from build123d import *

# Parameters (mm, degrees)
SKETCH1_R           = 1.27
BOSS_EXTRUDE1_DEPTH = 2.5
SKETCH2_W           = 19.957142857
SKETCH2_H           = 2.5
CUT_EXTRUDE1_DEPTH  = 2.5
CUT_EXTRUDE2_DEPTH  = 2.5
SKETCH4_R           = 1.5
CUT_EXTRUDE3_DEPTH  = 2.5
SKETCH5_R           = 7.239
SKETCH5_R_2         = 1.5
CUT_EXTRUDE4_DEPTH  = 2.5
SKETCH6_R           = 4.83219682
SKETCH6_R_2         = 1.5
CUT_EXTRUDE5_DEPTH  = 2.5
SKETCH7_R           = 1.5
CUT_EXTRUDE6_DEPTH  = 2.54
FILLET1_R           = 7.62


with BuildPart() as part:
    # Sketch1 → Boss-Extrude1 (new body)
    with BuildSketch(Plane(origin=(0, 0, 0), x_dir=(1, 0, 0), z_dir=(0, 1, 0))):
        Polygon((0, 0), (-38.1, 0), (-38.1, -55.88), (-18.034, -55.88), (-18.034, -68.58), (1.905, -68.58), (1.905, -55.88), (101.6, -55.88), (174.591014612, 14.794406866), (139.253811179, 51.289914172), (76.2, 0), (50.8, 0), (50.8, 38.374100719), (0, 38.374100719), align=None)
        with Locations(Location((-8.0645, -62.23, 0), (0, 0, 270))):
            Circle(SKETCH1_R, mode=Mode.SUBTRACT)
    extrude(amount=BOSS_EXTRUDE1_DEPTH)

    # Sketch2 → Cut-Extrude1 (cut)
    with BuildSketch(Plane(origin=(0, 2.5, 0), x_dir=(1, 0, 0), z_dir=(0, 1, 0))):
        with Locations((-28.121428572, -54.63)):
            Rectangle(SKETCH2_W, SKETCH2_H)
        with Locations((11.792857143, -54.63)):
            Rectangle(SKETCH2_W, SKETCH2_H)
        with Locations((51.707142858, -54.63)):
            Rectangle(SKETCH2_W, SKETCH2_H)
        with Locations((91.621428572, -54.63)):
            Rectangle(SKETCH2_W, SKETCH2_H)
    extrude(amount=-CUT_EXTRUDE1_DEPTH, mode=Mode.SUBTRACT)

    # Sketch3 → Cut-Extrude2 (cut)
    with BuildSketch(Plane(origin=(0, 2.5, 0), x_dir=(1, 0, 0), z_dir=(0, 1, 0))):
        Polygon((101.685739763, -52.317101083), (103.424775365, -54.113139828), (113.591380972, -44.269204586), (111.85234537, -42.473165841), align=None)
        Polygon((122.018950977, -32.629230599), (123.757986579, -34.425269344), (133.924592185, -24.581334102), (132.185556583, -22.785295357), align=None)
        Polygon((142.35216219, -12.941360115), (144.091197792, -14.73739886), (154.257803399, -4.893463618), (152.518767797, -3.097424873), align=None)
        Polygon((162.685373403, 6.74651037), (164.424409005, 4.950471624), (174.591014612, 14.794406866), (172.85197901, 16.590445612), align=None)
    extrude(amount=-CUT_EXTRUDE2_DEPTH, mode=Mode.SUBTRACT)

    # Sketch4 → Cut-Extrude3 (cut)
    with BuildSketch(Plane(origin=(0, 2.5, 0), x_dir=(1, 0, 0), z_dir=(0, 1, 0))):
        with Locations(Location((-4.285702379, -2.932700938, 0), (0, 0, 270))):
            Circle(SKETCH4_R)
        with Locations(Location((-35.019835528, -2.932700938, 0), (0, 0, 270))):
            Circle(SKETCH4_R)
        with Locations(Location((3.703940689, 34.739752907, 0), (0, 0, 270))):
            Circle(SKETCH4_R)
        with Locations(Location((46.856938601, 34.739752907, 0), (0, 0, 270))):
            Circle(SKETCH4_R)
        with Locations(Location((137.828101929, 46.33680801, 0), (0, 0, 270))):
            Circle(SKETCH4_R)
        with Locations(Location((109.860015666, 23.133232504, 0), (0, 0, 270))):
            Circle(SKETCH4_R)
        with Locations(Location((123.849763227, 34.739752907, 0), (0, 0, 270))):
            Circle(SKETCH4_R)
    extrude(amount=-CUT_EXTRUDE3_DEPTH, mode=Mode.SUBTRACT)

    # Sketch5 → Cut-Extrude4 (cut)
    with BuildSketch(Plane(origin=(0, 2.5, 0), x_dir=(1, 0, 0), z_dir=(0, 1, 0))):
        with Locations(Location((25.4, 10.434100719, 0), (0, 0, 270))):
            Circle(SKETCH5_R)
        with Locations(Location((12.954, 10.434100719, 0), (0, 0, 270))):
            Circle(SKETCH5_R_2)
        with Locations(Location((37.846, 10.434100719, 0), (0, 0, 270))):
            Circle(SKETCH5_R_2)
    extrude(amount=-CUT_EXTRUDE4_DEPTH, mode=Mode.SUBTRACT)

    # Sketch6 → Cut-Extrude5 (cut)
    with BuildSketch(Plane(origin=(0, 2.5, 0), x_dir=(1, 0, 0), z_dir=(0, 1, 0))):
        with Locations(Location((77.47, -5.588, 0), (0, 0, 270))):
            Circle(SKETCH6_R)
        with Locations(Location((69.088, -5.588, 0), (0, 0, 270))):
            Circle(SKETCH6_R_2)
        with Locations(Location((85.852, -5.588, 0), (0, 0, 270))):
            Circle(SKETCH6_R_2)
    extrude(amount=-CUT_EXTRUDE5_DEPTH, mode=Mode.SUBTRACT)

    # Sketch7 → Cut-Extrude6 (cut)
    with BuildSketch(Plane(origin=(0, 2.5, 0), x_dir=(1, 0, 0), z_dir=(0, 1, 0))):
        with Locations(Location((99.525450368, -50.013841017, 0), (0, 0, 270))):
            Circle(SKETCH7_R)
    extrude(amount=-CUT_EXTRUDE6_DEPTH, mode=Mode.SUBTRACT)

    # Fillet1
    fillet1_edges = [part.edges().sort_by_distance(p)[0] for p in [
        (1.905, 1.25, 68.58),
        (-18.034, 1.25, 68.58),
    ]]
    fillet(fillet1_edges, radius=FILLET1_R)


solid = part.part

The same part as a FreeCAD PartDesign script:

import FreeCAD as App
import Part
import Sketcher

V = App.Vector
Q = App.Units.Quantity


def edges_at(feature, points):
    """Names of the edges that pass closest to the given points."""
    edges = feature.Shape.Edges
    near = lambda p: min(range(len(edges)), key=lambda i: edges[i].distToShape(Part.Vertex(*p))[0])
    return sorted({f"Edge{near(p) + 1}" for p in points})

doc = App.newDocument("Part")
body = doc.addObject("PartDesign::Body", "Body")

# Sketch on XZ plane
sketch1 = body.newObject("Sketcher::SketchObject", "Sketch")
sketch1.AttachmentSupport = (doc.getObject("XZ_Plane"), [""])
sketch1.MapMode = "FlatFace"
sketch1.addGeometry([
    Part.LineSegment(V(0, 0, 0), V(-38.1, 0, 0)),  # 0
    Part.LineSegment(V(-38.1, 0, 0), V(-38.1, 55.9, 0)),  # 1
    Part.LineSegment(V(-38.1, 55.9, 0), V(-18, 55.9, 0)),  # 2
    Part.LineSegment(V(-18, 55.9, 0), V(-18, 68.6, 0)),  # 3
    Part.LineSegment(V(-18, 68.6, 0), V(1.9, 68.6, 0)),  # 4
    Part.LineSegment(V(1.9, 68.6, 0), V(1.9, 55.9, 0)),  # 5
    Part.LineSegment(V(1.9, 55.9, 0), V(101.6, 55.9, 0)),  # 6
    Part.LineSegment(V(101.6, 55.9, 0), V(174.6, -14.8, 0)),  # 7
    Part.LineSegment(V(174.6, -14.8, 0), V(139.3, -51.3, 0)),  # 8
    Part.LineSegment(V(139.3, -51.3, 0), V(76.2, 0, 0)),  # 9
    Part.LineSegment(V(76.2, 0, 0), V(50.8, 0, 0)),  # 10
    Part.LineSegment(V(50.8, 0, 0), V(50.8, -38.4, 0)),  # 11
    Part.LineSegment(V(50.8, -38.4, 0), V(0, -38.4, 0)),  # 12
    Part.LineSegment(V(0, -38.4, 0), V(0, 0, 0)),  # 13
    Part.Circle(V(-8.1, 62.2, 0), V(0, 0, 1), 1.3),  # 14
], False)
sketch1.addConstraint([
    Sketcher.Constraint("Coincident", 0, 2, 1, 1),
    Sketcher.Constraint("Coincident", 1, 2, 2, 1),
    Sketcher.Constraint("Coincident", 2, 2, 3, 1),
    Sketcher.Constraint("Coincident", 3, 2, 4, 1),
    Sketcher.Constraint("Coincident", 4, 2, 5, 1),
    Sketcher.Constraint("Coincident", 5, 2, 6, 1),
    Sketcher.Constraint("Coincident", 6, 2, 7, 1),
    Sketcher.Constraint("Coincident", 7, 2, 8, 1),
    Sketcher.Constraint("Coincident", 8, 2, 9, 1),
    Sketcher.Constraint("Coincident", 9, 2, 10, 1),
    Sketcher.Constraint("Coincident", 10, 2, 11, 1),
    Sketcher.Constraint("Coincident", 11, 2, 12, 1),
    Sketcher.Constraint("Coincident", 12, 2, 13, 1),
    Sketcher.Constraint("Coincident", 13, 2, 0, 1),
    Sketcher.Constraint("Horizontal", 0),
    Sketcher.Constraint("Vertical", 1),
    Sketcher.Constraint("Horizontal", 2),
    Sketcher.Constraint("Vertical", 3),
    Sketcher.Constraint("Horizontal", 4),
    Sketcher.Constraint("Vertical", 5),
    Sketcher.Constraint("Horizontal", 6),
    Sketcher.Constraint("Horizontal", 10),
    Sketcher.Constraint("Vertical", 11),
    Sketcher.Constraint("Horizontal", 12),
    Sketcher.Constraint("Vertical", 13),
    Sketcher.Constraint("Coincident", 13, 2, -1, 1),
    Sketcher.Constraint("PointOnObject", 9, 2, -1),
    Sketcher.Constraint("Perpendicular", 7, 8),
    Sketcher.Constraint("Horizontal", 2, 2, 5, 2),
    Sketcher.Constraint("Diameter", 14, Q("0.1 in")),
    Sketcher.Constraint("DistanceX", 10, 2, 10, 1, Q("1 in")),
    Sketcher.Constraint("DistanceX", 12, 2, 12, 1, Q("2 in")),
    Sketcher.Constraint("Distance", 7, Q("4 in")),
    Sketcher.Constraint("Distance", 8, Q("2 in")),
    Sketcher.Constraint("DistanceX", 0, 2, 0, 1, Q("1.5 in")),
    Sketcher.Constraint("DistanceY", 1, 1, 1, 2, Q("2.2 in")),
    Sketcher.Constraint("DistanceY", 3, 1, 3, 2, Q("0.5 in")),
    Sketcher.Constraint("DistanceX", -1, 1, 6, 2, Q("4 in")),
    Sketcher.Constraint("Distance", 9, Q("3.2 in")),
    Sketcher.Constraint("DistanceX", 2, 1, 2, 2, Q("0.79 in")),
    Sketcher.Constraint("DistanceX", 4, 1, 4, 2, Q("0.785 in")),
    Sketcher.Constraint("DistanceY", -1, 1, 14, 3, Q("2.45 in")),
    Sketcher.Constraint("DistanceY", 11, 2, 11, 1, 38.374101),
    Sketcher.Constraint("DistanceX", 14, 3, -1, 1, Q("0.3175 in")),
])
pad1 = body.newObject("PartDesign::Pad", "Pad")
pad1.Profile = sketch1
pad1.Length = 2.5
pad1.Reversed = True

# Sketch on XZ plane
sketch2 = body.newObject("Sketcher::SketchObject", "Sketch001")
sketch2.AttachmentSupport = (doc.getObject("XZ_Plane"), [""])
sketch2.MapMode = "FlatFace"
sketch2.AttachmentOffset = App.Placement(V(0, 0, -2.5), App.Rotation())
sketch2.addGeometry([
    Part.LineSegment(V(-38.1, 53.4, 0), V(-38.1, 55.9, 0)),  # 0
    Part.LineSegment(V(-38.1, 55.9, 0), V(-18.1, 55.9, 0)),  # 1
    Part.LineSegment(V(-18.1, 55.9, 0), V(-18.1, 53.4, 0)),  # 2
    Part.LineSegment(V(-18.1, 53.4, 0), V(-38.1, 53.4, 0)),  # 3
    Part.LineSegment(V(1.8, 53.4, 0), V(1.8, 55.9, 0)),  # 4
    Part.LineSegment(V(1.8, 55.9, 0), V(21.8, 55.9, 0)),  # 5
    Part.LineSegment(V(21.8, 55.9, 0), V(21.8, 53.4, 0)),  # 6
    Part.LineSegment(V(21.8, 53.4, 0), V(1.8, 53.4, 0)),  # 7
    Part.LineSegment(V(41.7, 53.4, 0), V(41.7, 55.9, 0)),  # 8
    Part.LineSegment(V(41.7, 55.9, 0), V(61.7, 55.9, 0)),  # 9
    Part.LineSegment(V(61.7, 55.9, 0), V(61.7, 53.4, 0)),  # 10
    Part.LineSegment(V(61.7, 53.4, 0), V(41.7, 53.4, 0)),  # 11
    Part.LineSegment(V(81.6, 53.4, 0), V(81.6, 55.9, 0)),  # 12
    Part.LineSegment(V(81.6, 55.9, 0), V(101.6, 55.9, 0)),  # 13
    Part.LineSegment(V(101.6, 55.9, 0), V(101.6, 53.4, 0)),  # 14
    Part.LineSegment(V(101.6, 53.4, 0), V(81.6, 53.4, 0)),  # 15
], False)
sketch2.addConstraint([
    Sketcher.Constraint("Coincident", 0, 2, 1, 1),
    Sketcher.Constraint("Coincident", 1, 2, 2, 1),
    Sketcher.Constraint("Coincident", 2, 2, 3, 1),
    Sketcher.Constraint("Coincident", 3, 2, 0, 1),
    Sketcher.Constraint("Coincident", 4, 2, 5, 1),
    Sketcher.Constraint("Coincident", 5, 2, 6, 1),
    Sketcher.Constraint("Coincident", 6, 2, 7, 1),
    Sketcher.Constraint("Coincident", 7, 2, 4, 1),
    Sketcher.Constraint("Coincident", 8, 2, 9, 1),
    Sketcher.Constraint("Coincident", 9, 2, 10, 1),
    Sketcher.Constraint("Coincident", 10, 2, 11, 1),
    Sketcher.Constraint("Coincident", 11, 2, 8, 1),
    Sketcher.Constraint("Coincident", 12, 2, 13, 1),
    Sketcher.Constraint("Coincident", 13, 2, 14, 1),
    Sketcher.Constraint("Coincident", 14, 2, 15, 1),
    Sketcher.Constraint("Coincident", 15, 2, 12, 1),
    Sketcher.Constraint("Vertical", 0),
    Sketcher.Constraint("Horizontal", 1),
    Sketcher.Constraint("Vertical", 2),
    Sketcher.Constraint("Horizontal", 3),
    Sketcher.Constraint("Vertical", 4),
    Sketcher.Constraint("Horizontal", 5),
    Sketcher.Constraint("Vertical", 6),
    Sketcher.Constraint("Horizontal", 7),
    Sketcher.Constraint("Vertical", 8),
    Sketcher.Constraint("Horizontal", 9),
    Sketcher.Constraint("Vertical", 10),
    Sketcher.Constraint("Horizontal", 11),
    Sketcher.Constraint("Vertical", 12),
    Sketcher.Constraint("Horizontal", 13),
    Sketcher.Constraint("Vertical", 14),
    Sketcher.Constraint("Horizontal", 15),
    Sketcher.Constraint("Horizontal", 1, 2, 4, 2),
    Sketcher.Constraint("Horizontal", 3, 2, 6, 2),
    Sketcher.Constraint("Horizontal", 5, 2, 8, 2),
    Sketcher.Constraint("Horizontal", 7, 2, 10, 2),
    Sketcher.Constraint("Horizontal", 9, 2, 12, 2),
    Sketcher.Constraint("Horizontal", 11, 2, 14, 2),
    Sketcher.Constraint("Equal", 3, 5),
    Sketcher.Constraint("Equal", 7, 9),
    Sketcher.Constraint("Equal", 11, 13),
    Sketcher.Constraint("DistanceX", -1, 1, 13, 2, Q("4 in")),
    Sketcher.Constraint("DistanceX", 0, 2, -1, 1, Q("1.5 in")),
    Sketcher.Constraint("DistanceY", -1, 1, 0, 2, Q("2.2 in")),
    Sketcher.Constraint("DistanceY", 0, 1, 0, 2, 2.5),
    Sketcher.Constraint("DistanceX", 1, 1, 1, 2, 19.957143),
    Sketcher.Constraint("DistanceX", -1, 1, 5, 2, 21.771429),
    Sketcher.Constraint("DistanceX", -1, 1, 8, 2, 41.728571),
])
pocket1 = body.newObject("PartDesign::Pocket", "Pocket")
pocket1.Profile = sketch2
pocket1.Length = 2.5
pocket1.Reversed = True

# Sketch on XZ plane
sketch3 = body.newObject("Sketcher::SketchObject", "Sketch002")
sketch3.AttachmentSupport = (doc.getObject("XZ_Plane"), [""])
sketch3.MapMode = "FlatFace"
sketch3.AttachmentOffset = App.Placement(V(0, 0, -2.5), App.Rotation())
sketch3.addGeometry([
    Part.LineSegment(V(101.7, 52.3, 0), V(103.4, 54.1, 0)),  # 0
    Part.LineSegment(V(103.4, 54.1, 0), V(113.6, 44.3, 0)),  # 1
    Part.LineSegment(V(113.6, 44.3, 0), V(111.9, 42.5, 0)),  # 2
    Part.LineSegment(V(111.9, 42.5, 0), V(101.7, 52.3, 0)),  # 3
    Part.LineSegment(V(122, 32.6, 0), V(123.8, 34.4, 0)),  # 4
    Part.LineSegment(V(123.8, 34.4, 0), V(133.9, 24.6, 0)),  # 5
    Part.LineSegment(V(133.9, 24.6, 0), V(132.2, 22.8, 0)),  # 6
    Part.LineSegment(V(132.2, 22.8, 0), V(122, 32.6, 0)),  # 7
    Part.LineSegment(V(142.4, 12.9, 0), V(144.1, 14.7, 0)),  # 8
    Part.LineSegment(V(144.1, 14.7, 0), V(154.3, 4.9, 0)),  # 9
    Part.LineSegment(V(154.3, 4.9, 0), V(152.5, 3.1, 0)),  # 10
    Part.LineSegment(V(152.5, 3.1, 0), V(142.4, 12.9, 0)),  # 11
    Part.LineSegment(V(162.7, -6.7, 0), V(164.4, -5, 0)),  # 12
    Part.LineSegment(V(164.4, -5, 0), V(174.6, -14.8, 0)),  # 13
    Part.LineSegment(V(174.6, -14.8, 0), V(172.9, -16.6, 0)),  # 14
    Part.LineSegment(V(172.9, -16.6, 0), V(162.7, -6.7, 0)),  # 15
], False)
sketch3.addConstraint([
    Sketcher.Constraint("Coincident", 0, 2, 1, 1),
    Sketcher.Constraint("Coincident", 1, 2, 2, 1),
    Sketcher.Constraint("Coincident", 2, 2, 3, 1),
    Sketcher.Constraint("Coincident", 3, 2, 0, 1),
    Sketcher.Constraint("Coincident", 4, 2, 5, 1),
    Sketcher.Constraint("Coincident", 5, 2, 6, 1),
    Sketcher.Constraint("Coincident", 6, 2, 7, 1),
    Sketcher.Constraint("Coincident", 7, 2, 4, 1),
    Sketcher.Constraint("Coincident", 8, 2, 9, 1),
    Sketcher.Constraint("Coincident", 9, 2, 10, 1),
    Sketcher.Constraint("Coincident", 10, 2, 11, 1),
    Sketcher.Constraint("Coincident", 11, 2, 8, 1),
    Sketcher.Constraint("Coincident", 12, 2, 13, 1),
    Sketcher.Constraint("Coincident", 13, 2, 14, 1),
    Sketcher.Constraint("Coincident", 14, 2, 15, 1),
    Sketcher.Constraint("Coincident", 15, 2, 12, 1),
    Sketcher.Constraint("Perpendicular", 0, 1),
    Sketcher.Constraint("Perpendicular", 1, 2),
    Sketcher.Constraint("Perpendicular", 2, 3),
    Sketcher.Constraint("Perpendicular", 3, 4),
    Sketcher.Constraint("Perpendicular", 4, 5),
    Sketcher.Constraint("Perpendicular", 5, 6),
    Sketcher.Constraint("Perpendicular", 6, 7),
    Sketcher.Constraint("Perpendicular", 7, 8),
    Sketcher.Constraint("Perpendicular", 8, 9),
    Sketcher.Constraint("Perpendicular", 9, 10),
    Sketcher.Constraint("Perpendicular", 10, 11),
    Sketcher.Constraint("Perpendicular", 11, 12),
    Sketcher.Constraint("Perpendicular", 12, 13),
    Sketcher.Constraint("Perpendicular", 13, 14),
    Sketcher.Constraint("Perpendicular", 14, 15),
    Sketcher.Constraint("Equal", 2, 4),
    Sketcher.Constraint("Equal", 3, 5),
    Sketcher.Constraint("Equal", 6, 8),
    Sketcher.Constraint("Equal", 7, 9),
    Sketcher.Constraint("Equal", 10, 12),
    Sketcher.Constraint("Equal", 11, 13),
    Sketcher.Constraint("Distance", 0, 2.5),
    Sketcher.Constraint("DistanceY", -1, 1, 3, 2, 52.317101),
    Sketcher.Constraint("DistanceY", -1, 1, 8, 2, 14.737399),
    Sketcher.Constraint("Distance", 1, 14.151429),
    Sketcher.Constraint("DistanceY", -1, 1, 0, 2, 54.11314),
    Sketcher.Constraint("DistanceX", -1, 1, 1, 2, 113.591381),
    Sketcher.Constraint("DistanceY", -1, 1, 4, 2, 34.425269),
    Sketcher.Constraint("DistanceX", -1, 1, 7, 2, 122.018951),
    Sketcher.Constraint("DistanceX", -1, 1, 12, 2, 164.424409),
    Sketcher.Constraint("DistanceY", 12, 2, -1, 1, 4.950472),
    Sketcher.Constraint("DistanceX", 6, 2, 8, 2, 11.905641),
])
pocket2 = body.newObject("PartDesign::Pocket", "Pocket001")
pocket2.Profile = sketch3
pocket2.Length = 2.5
pocket2.Reversed = True

# Sketch on XZ plane
sketch4 = body.newObject("Sketcher::SketchObject", "Sketch003")
sketch4.AttachmentSupport = (doc.getObject("XZ_Plane"), [""])
sketch4.MapMode = "FlatFace"
sketch4.AttachmentOffset = App.Placement(V(0, 0, -2.5), App.Rotation())
sketch4.addGeometry([
    Part.Circle(V(-4.3, 2.9, 0), V(0, 0, 1), 1.5),  # 0
    Part.Circle(V(-35, 2.9, 0), V(0, 0, 1), 1.5),  # 1
    Part.Circle(V(3.7, -34.7, 0), V(0, 0, 1), 1.5),  # 2
    Part.Circle(V(46.9, -34.7, 0), V(0, 0, 1), 1.5),  # 3
    Part.Circle(V(137.8, -46.3, 0), V(0, 0, 1), 1.5),  # 4
    Part.Circle(V(109.9, -23.1, 0), V(0, 0, 1), 1.5),  # 5
    Part.Circle(V(123.8, -34.7, 0), V(0, 0, 1), 1.5),  # 6
], False)
sketch4.addConstraint([
    Sketcher.Constraint("Equal", 0, 1),
    Sketcher.Constraint("Equal", 1, 2),
    Sketcher.Constraint("Equal", 2, 3),
    Sketcher.Constraint("Equal", 3, 4),
    Sketcher.Constraint("Equal", 4, 5),
    Sketcher.Constraint("Equal", 5, 6),
    Sketcher.Constraint("Horizontal", 0, 3, 1, 3),
    Sketcher.Constraint("Horizontal", 2, 3, 3, 3),
    Sketcher.Constraint("Horizontal", 3, 3, 6, 3),
    Sketcher.Constraint("Diameter", 0, 3.0),
    Sketcher.Constraint("DistanceY", -1, 1, 0, 3, 2.932701),
    Sketcher.Constraint("DistanceX", -1, 1, 4, 3, 137.828102),
    Sketcher.Constraint("DistanceX", -1, 1, 2, 3, 3.703941),
    Sketcher.Constraint("DistanceX", -1, 1, 3, 3, 46.856939),
    Sketcher.Constraint("DistanceY", 4, 3, -1, 1, 46.336808),
    Sketcher.Constraint("DistanceX", 0, 3, 3, 3, 51.142641),
    Sketcher.Constraint("DistanceY", 3, 3, 5, 3, 11.60652),
    Sketcher.Constraint("DistanceX", 0, 3, 5, 3, 114.145718),
    Sketcher.Constraint("DistanceX", 1, 3, 5, 3, 144.879851),
    Sketcher.Constraint("DistanceX", 6, 3, 4, 3, 13.978339),
    Sketcher.Constraint("DistanceY", 2, 3, -1, 1, 34.739753),
])
pocket3 = body.newObject("PartDesign::Pocket", "Pocket002")
pocket3.Profile = sketch4
pocket3.Length = 2.5
pocket3.Reversed = True

# Sketch on XZ plane
sketch5 = body.newObject("Sketcher::SketchObject", "Sketch004")
sketch5.AttachmentSupport = (doc.getObject("XZ_Plane"), [""])
sketch5.MapMode = "FlatFace"
sketch5.AttachmentOffset = App.Placement(V(0, 0, -2.5), App.Rotation())
sketch5.addGeometry([
    Part.Circle(V(25.4, -10.4, 0), V(0, 0, 1), 7.2),
    Part.Circle(V(13, -10.4, 0), V(0, 0, 1), 1.5),
    Part.Circle(V(37.8, -10.4, 0), V(0, 0, 1), 1.5),
], False)
sketch5.addConstraint([
    Sketcher.Constraint("Equal", 1, 2),
    Sketcher.Constraint("Horizontal", 0, 3, 1, 3),
    Sketcher.Constraint("Horizontal", 1, 3, 2, 3),
    Sketcher.Constraint("Diameter", 0, Q("0.57 in")),
    Sketcher.Constraint("DistanceX", -1, 1, 0, 3, Q("1 in")),
    Sketcher.Constraint("Diameter", 1, 3.0),
    Sketcher.Constraint("DistanceX", -1, 1, 1, 3, Q("0.51 in")),
    Sketcher.Constraint("DistanceX", -1, 1, 2, 3, Q("1.49 in")),
    Sketcher.Constraint("DistanceY", 0, 3, -1, 1, 10.434101),
])
pocket4 = body.newObject("PartDesign::Pocket", "Pocket003")
pocket4.Profile = sketch5
pocket4.Length = 2.5
pocket4.Reversed = True

# Sketch on XZ plane
sketch6 = body.newObject("Sketcher::SketchObject", "Sketch005")
sketch6.AttachmentSupport = (doc.getObject("XZ_Plane"), [""])
sketch6.MapMode = "FlatFace"
sketch6.AttachmentOffset = App.Placement(V(0, 0, -2.5), App.Rotation())
sketch6.addGeometry([
    Part.Circle(V(77.5, 5.6, 0), V(0, 0, 1), 4.8),
    Part.Circle(V(69.1, 5.6, 0), V(0, 0, 1), 1.5),
    Part.Circle(V(85.9, 5.6, 0), V(0, 0, 1), 1.5),
], False)
sketch6.addConstraint([
    Sketcher.Constraint("Equal", 1, 2),
    Sketcher.Constraint("Horizontal", 0, 3, 1, 3),
    Sketcher.Constraint("Horizontal", 1, 3, 2, 3),
    Sketcher.Constraint("Diameter", 1, 3.0),
    Sketcher.Constraint("DistanceX", -1, 1, 0, 3, Q("3.05 in")),
    Sketcher.Constraint("DistanceY", -1, 1, 0, 3, Q("0.22 in")),
    Sketcher.Constraint("DistanceX", -1, 1, 1, 3, Q("2.72 in")),
    Sketcher.Constraint("DistanceX", -1, 1, 2, 3, Q("3.38 in")),
    Sketcher.Constraint("Diameter", 0, 9.664394),
])
pocket5 = body.newObject("PartDesign::Pocket", "Pocket004")
pocket5.Profile = sketch6
pocket5.Length = 2.5
pocket5.Reversed = True

# Sketch on XZ plane
sketch7 = body.newObject("Sketcher::SketchObject", "Sketch006")
sketch7.AttachmentSupport = (doc.getObject("XZ_Plane"), [""])
sketch7.MapMode = "FlatFace"
sketch7.AttachmentOffset = App.Placement(V(0, 0, -2.5), App.Rotation())
sketch7.addGeometry(Part.Circle(V(99.5, 50, 0), V(0, 0, 1), 1.5), False)
sketch7.addConstraint([
    Sketcher.Constraint("Diameter", 0, 3.0),
    Sketcher.Constraint("DistanceX", -1, 1, 0, 3, 99.52545),
    Sketcher.Constraint("DistanceY", -1, 1, 0, 3, 50.013841),
])
pocket6 = body.newObject("PartDesign::Pocket", "Pocket005")
pocket6.Profile = sketch7
pocket6.Length = Q("0.1 in")
pocket6.Reversed = True
doc.recompute()

fillet = body.newObject("PartDesign::Fillet", "Fillet")
fillet.Base = (pocket6, edges_at(pocket6, [(1.905, 1.25, 68.58), (-18.034, 1.25, 68.58)]))
fillet.Radius = Q("0.3 in")

doc.recompute()
